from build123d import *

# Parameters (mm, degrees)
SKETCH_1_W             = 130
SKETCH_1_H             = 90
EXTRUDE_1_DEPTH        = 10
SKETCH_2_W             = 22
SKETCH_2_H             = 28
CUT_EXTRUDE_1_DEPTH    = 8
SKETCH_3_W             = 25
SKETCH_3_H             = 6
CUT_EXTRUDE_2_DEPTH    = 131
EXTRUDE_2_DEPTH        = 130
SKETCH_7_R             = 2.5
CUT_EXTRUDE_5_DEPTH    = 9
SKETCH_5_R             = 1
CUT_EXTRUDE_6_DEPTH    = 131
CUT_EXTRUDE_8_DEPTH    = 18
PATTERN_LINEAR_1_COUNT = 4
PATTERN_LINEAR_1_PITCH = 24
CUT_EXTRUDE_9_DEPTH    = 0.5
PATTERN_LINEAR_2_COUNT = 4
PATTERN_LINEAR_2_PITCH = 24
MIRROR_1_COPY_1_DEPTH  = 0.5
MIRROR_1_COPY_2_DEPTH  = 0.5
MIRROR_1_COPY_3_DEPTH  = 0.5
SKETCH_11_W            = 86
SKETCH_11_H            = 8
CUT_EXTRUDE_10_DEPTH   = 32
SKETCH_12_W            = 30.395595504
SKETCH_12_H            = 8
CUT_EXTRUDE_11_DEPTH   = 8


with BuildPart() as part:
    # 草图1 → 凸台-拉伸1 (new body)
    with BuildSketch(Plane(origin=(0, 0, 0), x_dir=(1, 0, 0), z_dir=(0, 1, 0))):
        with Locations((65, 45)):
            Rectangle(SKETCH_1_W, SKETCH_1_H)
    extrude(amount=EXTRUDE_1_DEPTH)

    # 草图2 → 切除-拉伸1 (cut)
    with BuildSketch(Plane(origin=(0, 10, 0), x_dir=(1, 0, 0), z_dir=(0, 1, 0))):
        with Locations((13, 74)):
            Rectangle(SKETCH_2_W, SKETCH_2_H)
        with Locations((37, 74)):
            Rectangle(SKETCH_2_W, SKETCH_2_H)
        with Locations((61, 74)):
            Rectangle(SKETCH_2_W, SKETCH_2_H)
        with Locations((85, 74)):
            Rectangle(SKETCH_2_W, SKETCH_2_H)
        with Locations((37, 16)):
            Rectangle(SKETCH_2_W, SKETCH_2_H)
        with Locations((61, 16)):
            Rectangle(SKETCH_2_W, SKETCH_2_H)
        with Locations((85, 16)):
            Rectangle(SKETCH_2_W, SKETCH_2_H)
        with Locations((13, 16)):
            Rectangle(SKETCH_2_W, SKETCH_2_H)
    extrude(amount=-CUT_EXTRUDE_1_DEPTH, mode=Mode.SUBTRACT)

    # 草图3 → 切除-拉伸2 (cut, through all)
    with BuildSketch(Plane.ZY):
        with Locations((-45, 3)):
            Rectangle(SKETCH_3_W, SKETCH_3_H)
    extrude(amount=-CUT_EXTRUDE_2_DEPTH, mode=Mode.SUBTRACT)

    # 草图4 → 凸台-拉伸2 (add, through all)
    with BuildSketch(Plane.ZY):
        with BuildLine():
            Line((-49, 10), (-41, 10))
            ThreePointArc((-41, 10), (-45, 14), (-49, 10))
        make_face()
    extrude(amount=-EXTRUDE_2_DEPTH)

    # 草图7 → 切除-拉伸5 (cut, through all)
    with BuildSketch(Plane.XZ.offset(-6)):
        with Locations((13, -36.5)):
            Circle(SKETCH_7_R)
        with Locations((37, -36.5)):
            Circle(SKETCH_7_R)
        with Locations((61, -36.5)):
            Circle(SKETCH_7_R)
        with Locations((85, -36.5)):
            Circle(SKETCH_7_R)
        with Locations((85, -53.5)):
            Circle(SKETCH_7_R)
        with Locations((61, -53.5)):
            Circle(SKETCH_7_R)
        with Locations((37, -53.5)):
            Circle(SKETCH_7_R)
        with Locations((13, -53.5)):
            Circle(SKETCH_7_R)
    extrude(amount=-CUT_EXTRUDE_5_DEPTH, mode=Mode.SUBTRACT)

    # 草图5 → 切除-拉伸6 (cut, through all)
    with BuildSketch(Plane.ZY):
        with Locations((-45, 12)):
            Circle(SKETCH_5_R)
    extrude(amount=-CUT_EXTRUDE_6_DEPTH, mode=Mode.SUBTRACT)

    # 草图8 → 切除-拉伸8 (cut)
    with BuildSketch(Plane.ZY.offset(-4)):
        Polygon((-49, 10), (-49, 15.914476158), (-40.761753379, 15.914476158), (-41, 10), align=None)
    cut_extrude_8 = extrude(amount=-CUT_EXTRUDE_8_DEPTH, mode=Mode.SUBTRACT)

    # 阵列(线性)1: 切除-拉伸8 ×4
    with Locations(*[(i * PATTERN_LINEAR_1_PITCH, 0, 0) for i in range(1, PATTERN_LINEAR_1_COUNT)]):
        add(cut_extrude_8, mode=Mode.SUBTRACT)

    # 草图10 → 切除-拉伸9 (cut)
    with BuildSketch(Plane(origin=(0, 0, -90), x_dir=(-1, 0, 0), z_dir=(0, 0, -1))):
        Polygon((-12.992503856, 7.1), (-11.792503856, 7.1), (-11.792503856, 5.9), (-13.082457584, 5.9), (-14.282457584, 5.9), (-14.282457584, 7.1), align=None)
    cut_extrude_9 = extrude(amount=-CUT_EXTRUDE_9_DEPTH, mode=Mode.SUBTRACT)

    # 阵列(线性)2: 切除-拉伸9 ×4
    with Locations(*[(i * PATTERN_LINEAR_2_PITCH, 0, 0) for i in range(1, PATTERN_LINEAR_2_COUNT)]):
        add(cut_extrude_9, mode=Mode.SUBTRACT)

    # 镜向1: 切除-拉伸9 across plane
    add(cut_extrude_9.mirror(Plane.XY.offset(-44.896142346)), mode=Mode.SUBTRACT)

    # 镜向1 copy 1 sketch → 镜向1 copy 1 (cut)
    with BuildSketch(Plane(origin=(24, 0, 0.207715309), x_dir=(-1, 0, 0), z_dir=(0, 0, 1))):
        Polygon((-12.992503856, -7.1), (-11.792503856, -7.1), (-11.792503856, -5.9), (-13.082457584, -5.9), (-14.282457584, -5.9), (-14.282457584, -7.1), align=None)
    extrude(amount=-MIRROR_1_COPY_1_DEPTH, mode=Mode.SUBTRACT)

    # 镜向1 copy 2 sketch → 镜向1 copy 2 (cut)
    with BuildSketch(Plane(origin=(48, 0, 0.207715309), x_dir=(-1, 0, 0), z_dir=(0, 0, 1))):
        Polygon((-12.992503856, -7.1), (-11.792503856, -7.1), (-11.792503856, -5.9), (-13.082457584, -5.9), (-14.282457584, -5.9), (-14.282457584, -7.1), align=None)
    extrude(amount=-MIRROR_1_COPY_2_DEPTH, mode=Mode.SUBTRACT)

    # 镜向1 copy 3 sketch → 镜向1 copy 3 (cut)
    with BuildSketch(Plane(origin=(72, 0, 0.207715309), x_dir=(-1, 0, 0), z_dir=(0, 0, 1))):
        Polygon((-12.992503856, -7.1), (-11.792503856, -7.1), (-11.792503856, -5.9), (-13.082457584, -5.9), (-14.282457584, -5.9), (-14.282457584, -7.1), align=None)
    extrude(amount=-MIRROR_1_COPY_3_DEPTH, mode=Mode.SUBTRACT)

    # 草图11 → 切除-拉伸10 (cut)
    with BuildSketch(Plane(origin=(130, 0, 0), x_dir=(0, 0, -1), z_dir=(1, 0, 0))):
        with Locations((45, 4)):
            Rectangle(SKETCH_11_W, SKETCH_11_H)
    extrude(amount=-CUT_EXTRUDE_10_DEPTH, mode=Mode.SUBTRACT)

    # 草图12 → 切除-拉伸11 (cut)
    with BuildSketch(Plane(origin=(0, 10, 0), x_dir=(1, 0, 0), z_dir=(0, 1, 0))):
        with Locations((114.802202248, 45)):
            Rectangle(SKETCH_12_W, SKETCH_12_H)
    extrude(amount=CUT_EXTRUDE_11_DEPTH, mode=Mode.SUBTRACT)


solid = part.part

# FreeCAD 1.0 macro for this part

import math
import FreeCAD as App
import Part
import Sketcher
from FreeCAD import Vector
Q = App.Units.Quantity

doc = App.newDocument("Part")
params = doc.addObject("Spreadsheet::Sheet", "Params")
for row, (alias, value) in enumerate([
    ("sketch1_width", "130 mm"),
    ("sketch1_height", "90 mm"),
    ("pad1_length", "10 mm"),
    ("sketch2_width", "22 mm"),
    ("sketch2_height", "28 mm"),
    ("pocket1_length", "8 mm"),
    ("sketch3_width", "6 mm"),
    ("sketch3_height", "25 mm"),
    ("sketch4_radius", "4 mm"),
    ("pad2_length", "130 mm"),
    ("sketch5_diameter", "5 mm"),
    ("sketch6_diameter", "2 mm"),
    ("sketch7_height", "8 mm"),
    ("pocket5_length", "18 mm"),
    ("linearpattern_pitch", "24 mm"),
    ("sketch8_height", "1.2 mm"),
    ("pocket6_length", "0.5 mm"),
    ("linearpattern2_pitch", "24 mm"),
    ("sketch9_height", "1.2 mm"),
    ("pocket7_length", "0.5 mm"),
    ("sketch10_height", "1.2 mm"),
    ("pocket8_length", "0.5 mm"),
    ("sketch11_height", "1.2 mm"),
    ("pocket9_length", "0.5 mm"),
    ("sketch12_width", "8 mm"),
    ("sketch12_height", "86 mm"),
    ("pocket10_length", "32 mm"),
    ("sketch13_height", "8 mm"),
    ("pocket11_length", "8 mm"),
], start=1):
    params.set(f"A{row}", alias)
    params.set(f"B{row}", "=" + value)
    params.setAlias(f"B{row}", alias)

body = doc.addObject("PartDesign::Body", "Body")

sketch1 = body.newObject("Sketcher::SketchObject", "Sketch")
sketch1.AttachmentSupport = (doc.getObject("XZ_Plane"), [""])
sketch1.MapMode = "FlatFace"
sketch1.addGeometry([
    Part.LineSegment(Vector(0, -90, 0), Vector(0, 0, 0)),
    Part.LineSegment(Vector(0, 0, 0), Vector(130, 0, 0)),
    Part.LineSegment(Vector(130, 0, 0), Vector(130, -90, 0)),
    Part.LineSegment(Vector(130, -90, 0), Vector(0, -90, 0)),
], False)
sketch1.addConstraint([
    Sketcher.Constraint("Coincident", 0, 2, 1, 1),
    Sketcher.Constraint("Coincident", 1, 2, 2, 1),
    Sketcher.Constraint("Coincident", 2, 2, 3, 1),
    Sketcher.Constraint("Coincident", 3, 2, 0, 1),
    Sketcher.Constraint("Vertical", 0),
    Sketcher.Constraint("Horizontal", 1),
    Sketcher.Constraint("Vertical", 2),
    Sketcher.Constraint("Horizontal", 3),
    Sketcher.Constraint("Coincident", 0, 2, -1, 1),
    Sketcher.Constraint("DistanceX", 1, 1, 1, 2, Q("130 mm")),
    Sketcher.Constraint("DistanceY", 0, 1, 0, 2, Q("90 mm")),
])
sketch1.setExpression("Constraints[9]", "Params.sketch1_width")
sketch1.setExpression("Constraints[10]", "Params.sketch1_height")
pad1 = body.newObject("PartDesign::Pad", "Pad")
pad1.Profile = sketch1
pad1.setExpression("Length", "Params.pad1_length")
pad1.Reversed = True

sketch2 = body.newObject("Sketcher::SketchObject", "Sketch001")
sketch2.AttachmentSupport = (doc.getObject("XZ_Plane"), [""])
sketch2.MapMode = "FlatFace"
sketch2.AttachmentOffset = App.Placement(Vector(0, 0, -10), App.Rotation())
sketch2.addGeometry([
    Part.LineSegment(Vector(2, -88, 0), Vector(2, -60, 0)),
    Part.LineSegment(Vector(2, -60, 0), Vector(24, -60, 0)),
    Part.LineSegment(Vector(24, -60, 0), Vector(24, -88, 0)),
    Part.LineSegment(Vector(24, -88, 0), Vector(2, -88, 0)),
    Part.LineSegment(Vector(26, -88, 0), Vector(26, -60, 0)),
    Part.LineSegment(Vector(26, -60, 0), Vector(48, -60, 0)),
    Part.LineSegment(Vector(48, -60, 0), Vector(48, -88, 0)),
    Part.LineSegment(Vector(48, -88, 0), Vector(26, -88, 0)),
    Part.LineSegment(Vector(50, -88, 0), Vector(50, -60, 0)),
    Part.LineSegment(Vector(50, -60, 0), Vector(72, -60, 0)),
    Part.LineSegment(Vector(72, -60, 0), Vector(72, -88, 0)),
    Part.LineSegment(Vector(72, -88, 0), Vector(50, -88, 0)),
    Part.LineSegment(Vector(74, -88, 0), Vector(74, -60, 0)),
    Part.LineSegment(Vector(74, -60, 0), Vector(96, -60, 0)),
    Part.LineSegment(Vector(96, -60, 0), Vector(96, -88, 0)),
    Part.LineSegment(Vector(96, -88, 0), Vector(74, -88, 0)),
    Part.LineSegment(Vector(26, -30, 0), Vector(26, -2, 0)),
    Part.LineSegment(Vector(26, -2, 0), Vector(48, -2, 0)),
    Part.LineSegment(Vector(48, -2, 0), Vector(48, -30, 0)),
    Part.LineSegment(Vector(48, -30, 0), Vector(26, -30, 0)),
    Part.LineSegment(Vector(50, -30, 0), Vector(50, -2, 0)),
    Part.LineSegment(Vector(50, -2, 0), Vector(72, -2, 0)),
    Part.LineSegment(Vector(72, -2, 0), Vector(72, -30, 0)),
    Part.LineSegment(Vector(72, -30, 0), Vector(50, -30, 0)),
    Part.LineSegment(Vector(74, -30, 0), Vector(74, -2, 0)),
    Part.LineSegment(Vector(74, -2, 0), Vector(96, -2, 0)),
    Part.LineSegment(Vector(96, -2, 0), Vector(96, -30, 0)),
    Part.LineSegment(Vector(96, -30, 0), Vector(74, -30, 0)),
    Part.LineSegment(Vector(2, -30, 0), Vector(2, -2, 0)),
    Part.LineSegment(Vector(2, -2, 0), Vector(24, -2, 0)),
    Part.LineSegment(Vector(24, -2, 0), Vector(24, -30, 0)),
    Part.LineSegment(Vector(24, -30, 0), Vector(2, -30, 0)),
], False)
sketch2.addConstraint([
    Sketcher.Constraint("Coincident", 0, 2, 1, 1),
    Sketcher.Constraint("Coincident", 1, 2, 2, 1),
    Sketcher.Constraint("Coincident", 2, 2, 3, 1),
    Sketcher.Constraint("Coincident", 3, 2, 0, 1),
    Sketcher.Constraint("Coincident", 4, 2, 5, 1),
    Sketcher.Constraint("Coincident", 5, 2, 6, 1),
    Sketcher.Constraint("Coincident", 6, 2, 7, 1),
    Sketcher.Constraint("Coincident", 7, 2, 4, 1),
    Sketcher.Constraint("Coincident", 8, 2, 9, 1),
    Sketcher.Constraint("Coincident", 9, 2, 10, 1),
    Sketcher.Constraint("Coincident", 10, 2, 11, 1),
    Sketcher.Constraint("Coincident", 11, 2, 8, 1),
    Sketcher.Constraint("Coincident", 12, 2, 13, 1),
    Sketcher.Constraint("Coincident", 13, 2, 14, 1),
    Sketcher.Constraint("Coincident", 14, 2, 15, 1),
    Sketcher.Constraint("Coincident", 15, 2, 12, 1),
    Sketcher.Constraint("Coincident", 16, 2, 17, 1),
    Sketcher.Constraint("Coincident", 17, 2, 18, 1),
    Sketcher.Constraint("Coincident", 18, 2, 19, 1),
    Sketcher.Constraint("Coincident", 19, 2, 16, 1),
    Sketcher.Constraint("Coincident", 20, 2, 21, 1),
    Sketcher.Constraint("Coincident", 21, 2, 22, 1),
    Sketcher.Constraint("Coincident", 22, 2, 23, 1),
    Sketcher.Constraint("Coincident", 23, 2, 20, 1),
    Sketcher.Constraint("Coincident", 24, 2, 25, 1),
    Sketcher.Constraint("Coincident", 25, 2, 26, 1),
    Sketcher.Constraint("Coincident", 26, 2, 27, 1),
    Sketcher.Constraint("Coincident", 27, 2, 24, 1),
    Sketcher.Constraint("Coincident", 28, 2, 29, 1),
    Sketcher.Constraint("Coincident", 29, 2, 30, 1),
    Sketcher.Constraint("Coincident", 30, 2, 31, 1),
    Sketcher.Constraint("Coincident", 31, 2, 28, 1),
    Sketcher.Constraint("Vertical", 0),
    Sketcher.Constraint("Horizontal", 1),
    Sketcher.Constraint("Vertical", 2),
    Sketcher.Constraint("Horizontal", 3),
    Sketcher.Constraint("Vertical", 4),
    Sketcher.Constraint("Horizontal", 5),
    Sketcher.Constraint("Vertical", 6),
    Sketcher.Constraint("Horizontal", 7),
    Sketcher.Constraint("Vertical", 8),
    Sketcher.Constraint("Horizontal", 9),
    Sketcher.Constraint("Vertical", 10),
    Sketcher.Constraint("Horizontal", 11),
    Sketcher.Constraint("Vertical", 12),
    Sketcher.Constraint("Horizontal", 13),
    Sketcher.Constraint("Vertical", 14),
    Sketcher.Constraint("Horizontal", 15),
    Sketcher.Constraint("Vertical", 16),
    Sketcher.Constraint("Horizontal", 17),
    Sketcher.Constraint("Vertical", 18),
    Sketcher.Constraint("Horizontal", 19),
    Sketcher.Constraint("Vertical", 20),
    Sketcher.Constraint("Horizontal", 21),
    Sketcher.Constraint("Vertical", 22),
    Sketcher.Constraint("Horizontal", 23),
    Sketcher.Constraint("Vertical", 24),
    Sketcher.Constraint("Horizontal", 25),
    Sketcher.Constraint("Vertical", 26),
    Sketcher.Constraint("Horizontal", 27),
    Sketcher.Constraint("Vertical", 28),
    Sketcher.Constraint("Horizontal", 29),
    Sketcher.Constraint("Vertical", 30),
    Sketcher.Constraint("Horizontal", 31),
    Sketcher.Constraint("Horizontal", 1, 2, 4, 2),
    Sketcher.Constraint("Horizontal", 3, 2, 6, 2),
    Sketcher.Constraint("Horizontal", 5, 2, 8, 2),
    Sketcher.Constraint("Horizontal", 7, 2, 10, 2),
    Sketcher.Constraint("Horizontal", 9, 2, 12, 2),
    Sketcher.Constraint("Horizontal", 11, 2, 14, 2),
    Sketcher.Constraint("Horizontal", 17, 2, 20, 2),
    Sketcher.Constraint("Horizontal", 19, 2, 22, 2),
    Sketcher.Constraint("Horizontal", 21, 2, 24, 2),
    Sketcher.Constraint("Horizontal", 23, 2, 26, 2),
    Sketcher.Constraint("Horizontal", 25, 2, 28, 2),
    Sketcher.Constraint("Horizontal", 27, 2, 30, 2),
    Sketcher.Constraint("Vertical", 7, 2, 16, 2),
    Sketcher.Constraint("Vertical", 6, 2, 17, 2),
    Sketcher.Constraint("Vertical", 11, 2, 20, 2),
    Sketcher.Constraint("Vertical", 10, 2, 21, 2),
    Sketcher.Constraint("Vertical", 15, 2, 24, 2),
    Sketcher.Constraint("Vertical", 14, 2, 25, 2),
    Sketcher.Constraint("Vertical", 3, 2, 28, 2),
    Sketcher.Constraint("Vertical", 2, 2, 29, 2),
    Sketcher.Constraint("Equal", 3, 5),
    Sketcher.Constraint("Equal", 7, 9),
    Sketcher.Constraint("Equal", 11, 13),
    Sketcher.Constraint("Equal", 14, 16),
    Sketcher.Constraint("DistanceX", 1, 1, 1, 2, Q("22 mm")),
    Sketcher.Constraint("DistanceY", 0, 1, 0, 2, Q("28 mm")),
    Sketcher.Constraint("DistanceX", -1, 1, 0, 2, Q("2 mm")),
    Sketcher.Constraint("DistanceY", 0, 2, -1, 1, Q("60 mm")),
    Sketcher.Constraint("DistanceX", -1, 1, 4, 2, Q("26 mm")),
    Sketcher.Constraint("DistanceX", -1, 1, 8, 2, Q("50 mm")),
    Sketcher.Constraint("DistanceX", -1, 1, 12, 2, Q("74 mm")),
    Sketcher.Constraint("DistanceY", 16, 2, -1, 1, Q("2 mm")),
])
sketch2.setExpression("Constraints[88]", "Params.sketch2_width")
sketch2.setExpression("Constraints[89]", "Params.sketch2_height")
pocket1 = body.newObject("PartDesign::Pocket", "Pocket")
pocket1.Profile = sketch2
pocket1.setExpression("Length", "Params.pocket1_length")
pocket1.Reversed = True

sketch3 = body.newObject("Sketcher::SketchObject", "Sketch002")
sketch3.AttachmentSupport = (doc.getObject("YZ_Plane"), [""])
sketch3.MapMode = "FlatFace"
sketch3.addGeometry([
    Part.LineSegment(Vector(6, -58, 0), Vector(0, -58, 0)),
    Part.LineSegment(Vector(0, -58, 0), Vector(0, -32, 0)),
    Part.LineSegment(Vector(0, -32, 0), Vector(6, -32, 0)),
    Part.LineSegment(Vector(6, -32, 0), Vector(6, -58, 0)),
], False)
sketch3.addConstraint([
    Sketcher.Constraint("Coincident", 0, 2, 1, 1),
    Sketcher.Constraint("Coincident", 1, 2, 2, 1),
    Sketcher.Constraint("Coincident", 2, 2, 3, 1),
    Sketcher.Constraint("Coincident", 3, 2, 0, 1),
    Sketcher.Constraint("Horizontal", 0),
    Sketcher.Constraint("Vertical", 1),
    Sketcher.Constraint("Horizontal", 2),
    Sketcher.Constraint("Vertical", 3),
    Sketcher.Constraint("PointOnObject", 0, 2, -2),
    Sketcher.Constraint("DistanceX", 0, 2, 0, 1, Q("6 mm")),
    Sketcher.Constraint("DistanceY", 1, 1, 1, 2, Q("25 mm")),
    Sketcher.Constraint("DistanceY", 0, 2, -1, 1, Q("57.5 mm")),
])
sketch3.setExpression("Constraints[9]", "Params.sketch3_width")
sketch3.setExpression("Constraints[10]", "Params.sketch3_height")
pocket2 = body.newObject("PartDesign::Pocket", "Pocket001")
pocket2.Profile = sketch3
pocket2.Type = "ThroughAll"
pocket2.Reversed = True

sketch4 = body.newObject("Sketcher::SketchObject", "Sketch003")
sketch4.AttachmentSupport = (doc.getObject("YZ_Plane"), [""])
sketch4.MapMode = "FlatFace"
sketch4.addGeometry([
    Part.LineSegment(Vector(10, -49, 0), Vector(10, -41, 0)),
    Part.ArcOfCircle(Part.Circle(Vector(10, -45, 0), Vector(0, 0, 1), 4), math.radians(-90), math.radians(90)),
], False)
sketch4.addConstraint([
    Sketcher.Constraint("Coincident", 0, 1, 1, 1),
    Sketcher.Constraint("Coincident", 1, 2, 0, 2),
    Sketcher.Constraint("Vertical", 0),
    Sketcher.Constraint("Vertical", 1, 3, 0, 1),
    Sketcher.Constraint("Radius", 1, Q("4 mm")),
    Sketcher.Constraint("DistanceX", -1, 1, 1, 3, Q("10 mm")),
    Sketcher.Constraint("DistanceY", 1, 3, -1, 1, Q("45 mm")),
])
sketch4.setExpression("Constraints[4]", "Params.sketch4_radius")
pad2 = body.newObject("PartDesign::Pad", "Pad001")
pad2.Profile = sketch4
pad2.setExpression("Length", "Params.pad2_length")

sketch5 = body.newObject("Sketcher::SketchObject", "Sketch004")
sketch5.AttachmentSupport = (doc.getObject("XZ_Plane"), [""])
sketch5.MapMode = "FlatFace"
sketch5.AttachmentOffset = App.Placement(Vector(0, 0, -6), App.Rotation())
sketch5.addGeometry([
    Part.Circle(Vector(13, -36.5, 0), Vector(0, 0, 1), 2.5),
    Part.Circle(Vector(37, -36.5, 0), Vector(0, 0, 1), 2.5),
    Part.Circle(Vector(61, -36.5, 0), Vector(0, 0, 1), 2.5),
    Part.Circle(Vector(85, -36.5, 0), Vector(0, 0, 1), 2.5),
    Part.Circle(Vector(85, -53.5, 0), Vector(0, 0, 1), 2.5),
    Part.Circle(Vector(61, -53.5, 0), Vector(0, 0, 1), 2.5),
    Part.Circle(Vector(37, -53.5, 0), Vector(0, 0, 1), 2.5),
    Part.Circle(Vector(13, -53.5, 0), Vector(0, 0, 1), 2.5),
], False)
sketch5.addConstraint([
    Sketcher.Constraint("Equal", 0, 1),
    Sketcher.Constraint("Equal", 1, 2),
    Sketcher.Constraint("Equal", 2, 3),
    Sketcher.Constraint("Equal", 3, 4),
    Sketcher.Constraint("Equal", 4, 5),
    Sketcher.Constraint("Equal", 5, 6),
    Sketcher.Constraint("Equal", 6, 7),
    Sketcher.Constraint("Horizontal", 0, 3, 1, 3),
    Sketcher.Constraint("Horizontal", 1, 3, 2, 3),
    Sketcher.Constraint("Horizontal", 2, 3, 3, 3),
    Sketcher.Constraint("Horizontal", 4, 3, 5, 3),
    Sketcher.Constraint("Horizontal", 5, 3, 6, 3),
    Sketcher.Constraint("Horizontal", 6, 3, 7, 3),
    Sketcher.Constraint("Vertical", 3, 3, 4, 3),
    Sketcher.Constraint("Vertical", 2, 3, 5, 3),
    Sketcher.Constraint("Vertical", 1, 3, 6, 3),
    Sketcher.Constraint("Vertical", 0, 3, 7, 3),
    Sketcher.Constraint("Diameter", 0, Q("5 mm")),
    Sketcher.Constraint("DistanceX", -1, 1, 0, 3, Q("13 mm")),
    Sketcher.Constraint("DistanceX", -1, 1, 1, 3, Q("37 mm")),
    Sketcher.Constraint("DistanceX", -1, 1, 2, 3, Q("61 mm")),
    Sketcher.Constraint("DistanceX", -1, 1, 3, 3, Q("85 mm")),
    Sketcher.Constraint("DistanceY", 4, 3, 3, 3, Q("17 mm")),
    Sketcher.Constraint("DistanceY", 0, 3, -1, 1, Q("36.5 mm")),
])
sketch5.setExpression("Constraints[17]", "Params.sketch5_diameter")
pocket3 = body.newObject("PartDesign::Pocket", "Pocket002")
pocket3.Profile = sketch5
pocket3.Type = "ThroughAll"

sketch6 = body.newObject("Sketcher::SketchObject", "Sketch005")
sketch6.AttachmentSupport = (doc.getObject("YZ_Plane"), [""])
sketch6.MapMode = "FlatFace"
sketch6.addGeometry(Part.Circle(Vector(12, -45, 0), Vector(0, 0, 1), 1), False)
sketch6.addConstraint([
    Sketcher.Constraint("Diameter", 0, Q("2 mm")),
    Sketcher.Constraint("DistanceX", -1, 1, 0, 3, Q("12 mm")),
    Sketcher.Constraint("DistanceY", 0, 3, -1, 1, Q("45 mm")),
])
sketch6.setExpression("Constraints[0]", "Params.sketch6_diameter")
pocket4 = body.newObject("PartDesign::Pocket", "Pocket003")
pocket4.Profile = sketch6
pocket4.Type = "ThroughAll"
pocket4.Reversed = True

sketch7 = body.newObject("Sketcher::SketchObject", "Sketch006")
sketch7.AttachmentSupport = (doc.getObject("YZ_Plane"), [""])
sketch7.MapMode = "FlatFace"
sketch7.AttachmentOffset = App.Placement(Vector(0, 0, 4), App.Rotation())
sketch7.addGeometry([
    Part.LineSegment(Vector(16, -49, 0), Vector(10, -49, 0)),
    Part.LineSegment(Vector(10, -49, 0), Vector(10, -41, 0)),
    Part.LineSegment(Vector(10, -41, 0), Vector(16, -41, 0)),
    Part.LineSegment(Vector(16, -41, 0), Vector(16, -49, 0)),
], False)
sketch7.addConstraint([
    Sketcher.Constraint("Coincident", 0, 2, 1, 1),
    Sketcher.Constraint("Coincident", 1, 2, 2, 1),
    Sketcher.Constraint("Coincident", 2, 2, 3, 1),
    Sketcher.Constraint("Coincident", 3, 2, 0, 1),
    Sketcher.Constraint("Horizontal", 0),
    Sketcher.Constraint("Vertical", 1),
    Sketcher.Constraint("Vertical", 3),
    Sketcher.Constraint("DistanceY", 1, 1, 1, 2, Q("8 mm")),
    Sketcher.Constraint("DistanceX", -1, 1, 0, 2, Q("10 mm")),
    Sketcher.Constraint("DistanceY", 0, 2, -1, 1, Q("49 mm")),
    Sketcher.Constraint("DistanceX", 0, 2, 0, 1, Q("5.914476 mm")),
    Sketcher.Constraint("DistanceY", 3, 2, 3, 1, Q("8.238247 mm")),
])
sketch7.setExpression("Constraints[7]", "Params.sketch7_height")
pocket5 = body.newObject("PartDesign::Pocket", "Pocket004")
pocket5.Profile = sketch7
pocket5.setExpression("Length", "Params.pocket5_length")
pocket5.Reversed = True
doc.recompute()

linearpattern = body.newObject("PartDesign::LinearPattern", "LinearPattern")
linearpattern.Originals = [pocket5]
linearpattern.Direction = (doc.getObject("X_Axis"), [""])
linearpattern.Mode = "offset"
linearpattern.setExpression("Offset", "Params.linearpattern_pitch")
linearpattern.Occurrences = 4
body.Tip = linearpattern

sketch8 = body.newObject("Sketcher::SketchObject", "Sketch007")
sketch8.AttachmentSupport = (doc.getObject("XY_Plane"), [""])
sketch8.MapMode = "FlatFace"
sketch8.AttachmentOffset = App.Placement(Vector(0, 0, -90), App.Rotation())
sketch8.addGeometry([
    Part.LineSegment(Vector(11.8, 7.1, 0), Vector(14.3, 7.1, 0)),
    Part.LineSegment(Vector(14.3, 7.1, 0), Vector(14.3, 5.9, 0)),
    Part.LineSegment(Vector(14.3, 5.9, 0), Vector(11.8, 5.9, 0)),
    Part.LineSegment(Vector(11.8, 5.9, 0), Vector(11.8, 7.1, 0)),
], False)
sketch8.addConstraint([
    Sketcher.Constraint("Coincident", 0, 2, 1, 1),
    Sketcher.Constraint("Coincident", 1, 2, 2, 1),
    Sketcher.Constraint("Coincident", 2, 2, 3, 1),
    Sketcher.Constraint("Coincident", 3, 2, 0, 1),
    Sketcher.Constraint("Horizontal", 0),
    Sketcher.Constraint("Vertical", 1),
    Sketcher.Constraint("Horizontal", 2),
    Sketcher.Constraint("Vertical", 3),
    Sketcher.Constraint("DistanceY", 1, 2, 1, 1, Q("1.2 mm")),
    Sketcher.Constraint("DistanceY", -1, 1, 0, 2, Q("7.1 mm")),
    Sketcher.Constraint("DistanceX", 0, 1, 0, 2, Q("2.489954 mm")),
    Sketcher.Constraint("DistanceX", -1, 1, 0, 2, Q("14.282458 mm")),
])
sketch8.setExpression("Constraints[8]", "Params.sketch8_height")
pocket6 = body.newObject("PartDesign::Pocket", "Pocket005")
pocket6.Profile = sketch8
pocket6.setExpression("Length", "Params.pocket6_length")
pocket6.Reversed = True
doc.recompute()

linearpattern2 = body.newObject("PartDesign::LinearPattern", "LinearPattern001")
linearpattern2.Originals = [pocket6]
linearpattern2.Direction = (doc.getObject("X_Axis"), [""])
linearpattern2.Mode = "offset"
linearpattern2.setExpression("Offset", "Params.linearpattern2_pitch")
linearpattern2.Occurrences = 4
body.Tip = linearpattern2
doc.recompute()

datumplane = body.newObject("PartDesign::Plane", "DatumPlane")
datumplane.AttachmentSupport = (doc.getObject("XY_Plane"), [""])
datumplane.MapMode = "FlatFace"
datumplane.AttachmentOffset = App.Placement(Vector(0, 0, -44.896142), App.Rotation())
mirrored = body.newObject("PartDesign::Mirrored", "Mirrored")
mirrored.Originals = [pocket6]
mirrored.MirrorPlane = (datumplane, [""])
body.Tip = mirrored

sketch9 = body.newObject("Sketcher::SketchObject", "Sketch008")
sketch9.AttachmentSupport = (doc.getObject("XY_Plane"), [""])
sketch9.MapMode = "FlatFace"
sketch9.AttachmentOffset = App.Placement(Vector(0, 0, 0.207715), App.Rotation())
sketch9.addGeometry([
    Part.LineSegment(Vector(35.8, 7.1, 0), Vector(35.8, 5.9, 0)),
    Part.LineSegment(Vector(35.8, 5.9, 0), Vector(38.3, 5.9, 0)),
    Part.LineSegment(Vector(38.3, 5.9, 0), Vector(38.3, 7.1, 0)),
    Part.LineSegment(Vector(38.3, 7.1, 0), Vector(35.8, 7.1, 0)),
], False)
sketch9.addConstraint([
    Sketcher.Constraint("Coincident", 0, 2, 1, 1),
    Sketcher.Constraint("Coincident", 1, 2, 2, 1),
    Sketcher.Constraint("Coincident", 2, 2, 3, 1),
    Sketcher.Constraint("Coincident", 3, 2, 0, 1),
    Sketcher.Constraint("Vertical", 0),
    Sketcher.Constraint("Horizontal", 1),
    Sketcher.Constraint("Vertical", 2),
    Sketcher.Constraint("Horizontal", 3),
    Sketcher.Constraint("DistanceY", 0, 2, 0, 1, Q("1.2 mm")),
    Sketcher.Constraint("DistanceY", -1, 1, 0, 2, Q("5.9 mm")),
    Sketcher.Constraint("DistanceX", 1, 1, 1, 2, Q("2.489954 mm")),
    Sketcher.Constraint("DistanceX", -1, 1, 0, 2, Q("35.792504 mm")),
])
sketch9.setExpression("Constraints[8]", "Params.sketch9_height")
pocket7 = body.newObject("PartDesign::Pocket", "Pocket006")
pocket7.Profile = sketch9
pocket7.setExpression("Length", "Params.pocket7_length")

sketch10 = body.newObject("Sketcher::SketchObject", "Sketch009")
sketch10.AttachmentSupport = (doc.getObject("XY_Plane"), [""])
sketch10.MapMode = "FlatFace"
sketch10.AttachmentOffset = App.Placement(Vector(0, 0, 0.207715), App.Rotation())
sketch10.addGeometry([
    Part.LineSegment(Vector(59.8, 7.1, 0), Vector(59.8, 5.9, 0)),
    Part.LineSegment(Vector(59.8, 5.9, 0), Vector(62.3, 5.9, 0)),
    Part.LineSegment(Vector(62.3, 5.9, 0), Vector(62.3, 7.1, 0)),
    Part.LineSegment(Vector(62.3, 7.1, 0), Vector(59.8, 7.1, 0)),
], False)
sketch10.addConstraint([
    Sketcher.Constraint("Coincident", 0, 2, 1, 1),
    Sketcher.Constraint("Coincident", 1, 2, 2, 1),
    Sketcher.Constraint("Coincident", 2, 2, 3, 1),
    Sketcher.Constraint("Coincident", 3, 2, 0, 1),
    Sketcher.Constraint("Vertical", 0),
    Sketcher.Constraint("Horizontal", 1),
    Sketcher.Constraint("Vertical", 2),
    Sketcher.Constraint("Horizontal", 3),
    Sketcher.Constraint("DistanceY", 0, 2, 0, 1, Q("1.2 mm")),
    Sketcher.Constraint("DistanceY", -1, 1, 0, 2, Q("5.9 mm")),
    Sketcher.Constraint("DistanceX", 1, 1, 1, 2, Q("2.489954 mm")),
    Sketcher.Constraint("DistanceX", -1, 1, 0, 2, Q("59.792504 mm")),
])
sketch10.setExpression("Constraints[8]", "Params.sketch10_height")
pocket8 = body.newObject("PartDesign::Pocket", "Pocket007")
pocket8.Profile = sketch10
pocket8.setExpression("Length", "Params.pocket8_length")

sketch11 = body.newObject("Sketcher::SketchObject", "Sketch010")
sketch11.AttachmentSupport = (doc.getObject("XY_Plane"), [""])
sketch11.MapMode = "FlatFace"
sketch11.AttachmentOffset = App.Placement(Vector(0, 0, 0.207715), App.Rotation())
sketch11.addGeometry([
    Part.LineSegment(Vector(83.8, 7.1, 0), Vector(83.8, 5.9, 0)),
    Part.LineSegment(Vector(83.8, 5.9, 0), Vector(86.3, 5.9, 0)),
    Part.LineSegment(Vector(86.3, 5.9, 0), Vector(86.3, 7.1, 0)),
    Part.LineSegment(Vector(86.3, 7.1, 0), Vector(83.8, 7.1, 0)),
], False)
sketch11.addConstraint([
    Sketcher.Constraint("Coincident", 0, 2, 1, 1),
    Sketcher.Constraint("Coincident", 1, 2, 2, 1),
    Sketcher.Constraint("Coincident", 2, 2, 3, 1),
    Sketcher.Constraint("Coincident", 3, 2, 0, 1),
    Sketcher.Constraint("Vertical", 0),
    Sketcher.Constraint("Horizontal", 1),
    Sketcher.Constraint("Vertical", 2),
    Sketcher.Constraint("Horizontal", 3),
    Sketcher.Constraint("DistanceY", 0, 2, 0, 1, Q("1.2 mm")),
    Sketcher.Constraint("DistanceY", -1, 1, 0, 2, Q("5.9 mm")),
    Sketcher.Constraint("DistanceX", 1, 1, 1, 2, Q("2.489954 mm")),
    Sketcher.Constraint("DistanceX", -1, 1, 0, 2, Q("83.792504 mm")),
])
sketch11.setExpression("Constraints[8]", "Params.sketch11_height")
pocket9 = body.newObject("PartDesign::Pocket", "Pocket008")
pocket9.Profile = sketch11
pocket9.setExpression("Length", "Params.pocket9_length")

sketch12 = body.newObject("Sketcher::SketchObject", "Sketch011")
sketch12.AttachmentSupport = (doc.getObject("YZ_Plane"), [""])
sketch12.MapMode = "FlatFace"
sketch12.AttachmentOffset = App.Placement(Vector(0, 0, 130), App.Rotation())
sketch12.addGeometry([
    Part.LineSegment(Vector(8, -2, 0), Vector(0, -2, 0)),
    Part.LineSegment(Vector(0, -2, 0), Vector(0, -88, 0)),
    Part.LineSegment(Vector(0, -88, 0), Vector(8, -88, 0)),
    Part.LineSegment(Vector(8, -88, 0), Vector(8, -2, 0)),
], False)
sketch12.addConstraint([
    Sketcher.Constraint("Coincident", 0, 2, 1, 1),
    Sketcher.Constraint("Coincident", 1, 2, 2, 1),
    Sketcher.Constraint("Coincident", 2, 2, 3, 1),
    Sketcher.Constraint("Coincident", 3, 2, 0, 1),
    Sketcher.Constraint("Horizontal", 0),
    Sketcher.Constraint("Vertical", 1),
    Sketcher.Constraint("Horizontal", 2),
    Sketcher.Constraint("Vertical", 3),
    Sketcher.Constraint("PointOnObject", 0, 2, -2),
    Sketcher.Constraint("DistanceX", 0, 2, 0, 1, Q("8 mm")),
    Sketcher.Constraint("DistanceY", 1, 2, 1, 1, Q("86 mm")),
    Sketcher.Constraint("DistanceY", 0, 2, -1, 1, Q("2 mm")),
])
sketch12.setExpression("Constraints[9]", "Params.sketch12_width")
sketch12.setExpression("Constraints[10]", "Params.sketch12_height")
pocket10 = body.newObject("PartDesign::Pocket", "Pocket009")
pocket10.Profile = sketch12
pocket10.setExpression("Length", "Params.pocket10_length")

sketch13 = body.newObject("Sketcher::SketchObject", "Sketch012")
sketch13.AttachmentSupport = (doc.getObject("XZ_Plane"), [""])
sketch13.MapMode = "FlatFace"
sketch13.AttachmentOffset = App.Placement(Vector(0, 0, -10), App.Rotation())
sketch13.addGeometry([
    Part.LineSegment(Vector(100, -49, 0), Vector(100, -41, 0)),
    Part.LineSegment(Vector(100, -41, 0), Vector(130, -41, 0)),
    Part.LineSegment(Vector(130, -41, 0), Vector(130, -49, 0)),
    Part.LineSegment(Vector(130, -49, 0), Vector(100, -49, 0)),
], False)
sketch13.addConstraint([
    Sketcher.Constraint("Coincident", 0, 2, 1, 1),
    Sketcher.Constraint("Coincident", 1, 2, 2, 1),
    Sketcher.Constraint("Coincident", 2, 2, 3, 1),
    Sketcher.Constraint("Coincident", 3, 2, 0, 1),
    Sketcher.Constraint("Vertical", 0),
    Sketcher.Constraint("Horizontal", 1),
    Sketcher.Constraint("Vertical", 2),
    Sketcher.Constraint("Horizontal", 3),
    Sketcher.Constraint("DistanceY", 0, 1, 0, 2, Q("8 mm")),
    Sketcher.Constraint("DistanceY", 0, 2, -1, 1, Q("41 mm")),
    Sketcher.Constraint("DistanceX", -1, 1, 1, 2, Q("130 mm")),
    Sketcher.Constraint("DistanceX", 1, 1, 1, 2, Q("30.395596 mm")),
])
sketch13.setExpression("Constraints[8]", "Params.sketch13_height")
pocket11 = body.newObject("PartDesign::Pocket", "Pocket010")
pocket11.Profile = sketch13
pocket11.setExpression("Length", "Params.pocket11_length")

doc.recompute()
